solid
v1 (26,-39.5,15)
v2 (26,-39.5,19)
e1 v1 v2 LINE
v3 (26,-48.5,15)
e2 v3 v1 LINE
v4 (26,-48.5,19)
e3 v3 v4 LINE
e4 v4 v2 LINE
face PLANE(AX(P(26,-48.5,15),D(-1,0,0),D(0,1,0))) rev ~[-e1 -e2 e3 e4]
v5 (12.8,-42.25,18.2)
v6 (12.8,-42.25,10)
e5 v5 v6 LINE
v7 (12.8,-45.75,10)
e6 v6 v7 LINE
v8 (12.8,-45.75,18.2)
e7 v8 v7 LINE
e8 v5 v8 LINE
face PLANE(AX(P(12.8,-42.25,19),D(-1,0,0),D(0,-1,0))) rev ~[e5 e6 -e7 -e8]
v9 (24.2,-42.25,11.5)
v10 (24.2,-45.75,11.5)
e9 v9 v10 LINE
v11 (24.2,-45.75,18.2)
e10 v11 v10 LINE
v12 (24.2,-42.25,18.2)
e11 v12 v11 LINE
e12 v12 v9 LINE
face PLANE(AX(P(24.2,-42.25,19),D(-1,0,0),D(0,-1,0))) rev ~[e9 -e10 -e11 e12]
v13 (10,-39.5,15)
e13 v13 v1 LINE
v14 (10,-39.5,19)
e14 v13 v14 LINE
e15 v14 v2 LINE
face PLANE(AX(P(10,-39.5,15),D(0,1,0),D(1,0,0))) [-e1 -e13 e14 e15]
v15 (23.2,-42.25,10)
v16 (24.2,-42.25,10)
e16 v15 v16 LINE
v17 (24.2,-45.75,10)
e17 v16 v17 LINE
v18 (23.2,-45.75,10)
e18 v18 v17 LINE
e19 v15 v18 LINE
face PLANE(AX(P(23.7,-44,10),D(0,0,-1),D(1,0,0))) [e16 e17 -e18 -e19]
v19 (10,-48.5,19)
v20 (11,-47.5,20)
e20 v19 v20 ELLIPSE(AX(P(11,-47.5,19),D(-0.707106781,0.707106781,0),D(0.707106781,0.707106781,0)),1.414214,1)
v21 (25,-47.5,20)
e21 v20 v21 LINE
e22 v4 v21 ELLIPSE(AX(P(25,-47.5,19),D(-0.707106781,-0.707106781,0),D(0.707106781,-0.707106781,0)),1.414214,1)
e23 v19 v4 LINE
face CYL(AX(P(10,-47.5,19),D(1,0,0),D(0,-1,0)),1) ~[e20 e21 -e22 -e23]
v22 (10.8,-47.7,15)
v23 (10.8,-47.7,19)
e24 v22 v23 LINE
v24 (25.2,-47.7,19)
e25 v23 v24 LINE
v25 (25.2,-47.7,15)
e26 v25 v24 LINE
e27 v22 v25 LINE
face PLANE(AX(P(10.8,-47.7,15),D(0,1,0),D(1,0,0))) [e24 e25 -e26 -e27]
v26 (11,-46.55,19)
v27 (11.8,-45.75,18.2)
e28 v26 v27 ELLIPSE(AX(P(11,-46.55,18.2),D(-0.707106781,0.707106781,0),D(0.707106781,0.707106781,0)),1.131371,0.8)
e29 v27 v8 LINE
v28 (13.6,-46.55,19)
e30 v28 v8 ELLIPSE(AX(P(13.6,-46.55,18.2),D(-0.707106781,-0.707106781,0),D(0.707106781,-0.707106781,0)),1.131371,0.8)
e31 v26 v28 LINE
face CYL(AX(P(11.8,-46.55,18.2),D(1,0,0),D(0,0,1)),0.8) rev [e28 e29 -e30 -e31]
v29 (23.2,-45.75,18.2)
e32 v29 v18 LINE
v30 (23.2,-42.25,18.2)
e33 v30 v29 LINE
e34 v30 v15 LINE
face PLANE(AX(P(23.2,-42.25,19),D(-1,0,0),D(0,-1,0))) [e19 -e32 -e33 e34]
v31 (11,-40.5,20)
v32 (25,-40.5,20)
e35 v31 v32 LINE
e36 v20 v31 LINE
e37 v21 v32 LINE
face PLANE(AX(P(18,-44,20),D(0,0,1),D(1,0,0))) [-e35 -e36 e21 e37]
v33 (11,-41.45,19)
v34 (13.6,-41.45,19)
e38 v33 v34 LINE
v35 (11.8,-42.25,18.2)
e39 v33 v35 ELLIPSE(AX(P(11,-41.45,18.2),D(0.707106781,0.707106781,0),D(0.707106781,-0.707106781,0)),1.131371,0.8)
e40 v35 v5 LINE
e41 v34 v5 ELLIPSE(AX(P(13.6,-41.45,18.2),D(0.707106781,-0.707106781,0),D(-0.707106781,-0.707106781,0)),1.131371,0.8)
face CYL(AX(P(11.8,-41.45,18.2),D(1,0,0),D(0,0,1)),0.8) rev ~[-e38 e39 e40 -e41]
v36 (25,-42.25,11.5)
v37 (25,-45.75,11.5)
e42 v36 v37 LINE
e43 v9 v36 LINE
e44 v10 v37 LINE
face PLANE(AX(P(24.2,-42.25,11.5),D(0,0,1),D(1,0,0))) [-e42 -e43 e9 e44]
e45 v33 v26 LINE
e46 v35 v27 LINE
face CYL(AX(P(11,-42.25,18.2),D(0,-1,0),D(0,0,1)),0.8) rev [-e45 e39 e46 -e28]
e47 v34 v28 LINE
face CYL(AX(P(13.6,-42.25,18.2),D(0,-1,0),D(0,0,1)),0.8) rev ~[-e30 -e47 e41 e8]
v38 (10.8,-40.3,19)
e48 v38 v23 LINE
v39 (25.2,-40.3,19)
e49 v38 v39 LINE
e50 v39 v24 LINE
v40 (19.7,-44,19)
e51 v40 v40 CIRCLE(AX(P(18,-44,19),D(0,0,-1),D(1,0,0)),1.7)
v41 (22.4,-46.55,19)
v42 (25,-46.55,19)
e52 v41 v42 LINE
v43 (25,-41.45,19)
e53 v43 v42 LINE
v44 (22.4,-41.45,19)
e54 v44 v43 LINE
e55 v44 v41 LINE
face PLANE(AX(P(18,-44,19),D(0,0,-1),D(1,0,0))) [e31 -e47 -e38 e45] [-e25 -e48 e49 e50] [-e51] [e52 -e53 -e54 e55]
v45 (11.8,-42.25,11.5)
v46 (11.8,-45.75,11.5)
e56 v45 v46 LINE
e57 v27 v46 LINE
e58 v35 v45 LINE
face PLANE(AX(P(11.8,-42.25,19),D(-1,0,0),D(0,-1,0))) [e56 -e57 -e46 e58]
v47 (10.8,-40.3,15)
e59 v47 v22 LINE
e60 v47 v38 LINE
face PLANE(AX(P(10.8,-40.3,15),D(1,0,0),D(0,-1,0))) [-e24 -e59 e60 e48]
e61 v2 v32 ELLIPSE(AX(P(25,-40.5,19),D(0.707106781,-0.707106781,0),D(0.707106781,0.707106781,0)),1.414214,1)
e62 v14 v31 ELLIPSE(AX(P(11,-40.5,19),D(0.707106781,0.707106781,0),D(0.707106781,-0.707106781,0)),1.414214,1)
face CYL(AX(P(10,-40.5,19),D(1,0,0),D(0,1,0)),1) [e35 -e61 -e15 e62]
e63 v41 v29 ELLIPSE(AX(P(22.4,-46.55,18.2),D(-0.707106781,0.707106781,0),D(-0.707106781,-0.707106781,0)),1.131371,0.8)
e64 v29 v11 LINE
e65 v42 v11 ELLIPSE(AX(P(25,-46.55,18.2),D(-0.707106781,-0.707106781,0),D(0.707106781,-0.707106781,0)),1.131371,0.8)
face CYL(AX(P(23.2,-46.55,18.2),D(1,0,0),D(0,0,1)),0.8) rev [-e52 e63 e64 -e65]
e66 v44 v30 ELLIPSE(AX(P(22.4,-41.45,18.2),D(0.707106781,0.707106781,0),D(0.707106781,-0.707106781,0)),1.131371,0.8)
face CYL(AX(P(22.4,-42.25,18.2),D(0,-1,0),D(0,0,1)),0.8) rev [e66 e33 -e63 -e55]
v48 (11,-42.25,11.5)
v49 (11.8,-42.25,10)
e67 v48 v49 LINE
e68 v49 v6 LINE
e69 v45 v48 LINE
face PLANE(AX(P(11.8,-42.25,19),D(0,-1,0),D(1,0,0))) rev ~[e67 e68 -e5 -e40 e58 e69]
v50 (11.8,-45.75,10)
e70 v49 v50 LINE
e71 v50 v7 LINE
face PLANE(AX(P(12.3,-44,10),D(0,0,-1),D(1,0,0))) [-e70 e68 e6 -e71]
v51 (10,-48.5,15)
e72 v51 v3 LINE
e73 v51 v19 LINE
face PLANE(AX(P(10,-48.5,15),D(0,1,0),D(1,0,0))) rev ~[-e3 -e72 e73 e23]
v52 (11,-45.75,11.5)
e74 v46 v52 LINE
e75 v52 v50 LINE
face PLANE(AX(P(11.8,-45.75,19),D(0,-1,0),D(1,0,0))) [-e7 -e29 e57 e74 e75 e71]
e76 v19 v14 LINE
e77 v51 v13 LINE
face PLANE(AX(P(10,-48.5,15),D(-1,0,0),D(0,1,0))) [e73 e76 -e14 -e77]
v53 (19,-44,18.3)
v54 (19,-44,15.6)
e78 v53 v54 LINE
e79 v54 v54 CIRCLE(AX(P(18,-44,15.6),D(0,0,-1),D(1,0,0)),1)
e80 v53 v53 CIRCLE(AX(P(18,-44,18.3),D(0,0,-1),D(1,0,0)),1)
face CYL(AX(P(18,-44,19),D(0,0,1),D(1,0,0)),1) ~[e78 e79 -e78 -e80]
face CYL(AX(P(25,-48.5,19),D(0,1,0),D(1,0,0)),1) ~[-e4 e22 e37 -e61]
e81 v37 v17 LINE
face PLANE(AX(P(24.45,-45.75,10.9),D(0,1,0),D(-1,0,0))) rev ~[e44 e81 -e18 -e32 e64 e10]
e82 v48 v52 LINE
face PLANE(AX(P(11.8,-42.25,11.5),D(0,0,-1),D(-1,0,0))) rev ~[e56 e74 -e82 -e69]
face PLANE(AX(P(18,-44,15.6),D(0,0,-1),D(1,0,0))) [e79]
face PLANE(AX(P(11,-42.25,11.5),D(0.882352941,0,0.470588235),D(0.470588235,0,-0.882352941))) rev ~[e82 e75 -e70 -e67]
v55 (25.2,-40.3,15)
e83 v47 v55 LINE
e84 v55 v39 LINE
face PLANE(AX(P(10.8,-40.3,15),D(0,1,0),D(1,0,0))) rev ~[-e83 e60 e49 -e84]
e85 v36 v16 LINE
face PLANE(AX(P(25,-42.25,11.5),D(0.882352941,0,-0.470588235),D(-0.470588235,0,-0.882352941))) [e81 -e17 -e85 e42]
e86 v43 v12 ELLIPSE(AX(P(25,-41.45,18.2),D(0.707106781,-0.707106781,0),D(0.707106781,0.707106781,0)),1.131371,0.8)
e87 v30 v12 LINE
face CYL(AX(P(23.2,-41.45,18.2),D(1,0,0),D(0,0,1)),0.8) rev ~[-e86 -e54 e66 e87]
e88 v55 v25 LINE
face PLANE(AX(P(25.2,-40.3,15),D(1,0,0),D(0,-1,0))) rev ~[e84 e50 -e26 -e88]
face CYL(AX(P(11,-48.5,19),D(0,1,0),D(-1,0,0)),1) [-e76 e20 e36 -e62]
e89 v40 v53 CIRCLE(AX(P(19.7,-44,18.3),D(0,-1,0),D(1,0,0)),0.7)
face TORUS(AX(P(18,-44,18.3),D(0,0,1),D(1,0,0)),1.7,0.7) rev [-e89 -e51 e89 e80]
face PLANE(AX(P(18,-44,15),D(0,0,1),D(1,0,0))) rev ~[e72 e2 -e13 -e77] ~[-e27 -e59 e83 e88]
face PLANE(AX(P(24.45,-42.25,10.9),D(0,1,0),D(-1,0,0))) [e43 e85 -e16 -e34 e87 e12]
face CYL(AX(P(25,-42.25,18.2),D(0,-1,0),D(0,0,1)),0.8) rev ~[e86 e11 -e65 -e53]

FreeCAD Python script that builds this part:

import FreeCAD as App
import Part
import Sketcher


def edges_at(feature, points):
    """Names of the edges that pass closest to the given points."""
    edges = feature.Shape.Edges
    near = lambda p: min(range(len(edges)), key=lambda i: edges[i].distToShape(Part.Vertex(*p))[0])
    return sorted({f"Edge{near(p) + 1}" for p in points})

doc = App.newDocument("Part")
params = doc.addObject("Spreadsheet::Sheet", "Params")
for row, (alias, value) in enumerate([
    ("sketch1_width", "16 mm"),
    ("sketch1_height", "9 mm"),
    ("pad1_length", "5 mm"),
    ("sketch2_width", "14.4 mm"),
    ("sketch2_height", "7.4 mm"),
    ("pocket1_length", "4 mm"),
    ("sketch3_width", "1 mm"),
    ("sketch3_height", "3.5 mm"),
    ("pad2_length", "9 mm"),
    ("sketch4_width", "0.8 mm"),
    ("sketch4_height", "1.5 mm"),
    ("pad3_length", "3.5 mm"),
    ("sketch5_diameter", "2 mm"),
    ("pad4_length", "3.4 mm"),
    ("fillet_radius", "1 mm"),
    ("fillet2_radius", "0.7 mm"),
    ("fillet3_radius", "0.8 mm"),
], start=1):
    params.set(f"A{row}", alias)
    params.set(f"B{row}", "=" + value)
    params.setAlias(f"B{row}", alias)

body = doc.addObject("PartDesign::Body", "Body")

sketch1 = doc.addObject("Sketcher::SketchObject", "Sketch")
body.addObject(sketch1)
sketch1.AttachmentSupport = (doc.XY_Plane, [""])
sketch1.MapMode = "FlatFace"
sketch1.addGeometry([
    Part.LineSegment(App.Vector(-8, 4.5, 0), App.Vector(-8, -4.5, 0)),
    Part.LineSegment(App.Vector(-8, -4.5, 0), App.Vector(8, -4.5, 0)),
    Part.LineSegment(App.Vector(8, -4.5, 0), App.Vector(8, 4.5, 0)),
    Part.LineSegment(App.Vector(8, 4.5, 0), App.Vector(-8, 4.5, 0)),
], False)
sketch1.addConstraint([
    Sketcher.Constraint("Coincident", 0, 2, 1, 1),
    Sketcher.Constraint("Coincident", 1, 2, 2, 1),
    Sketcher.Constraint("Coincident", 2, 2, 3, 1),
    Sketcher.Constraint("Coincident", 3, 2, 0, 1),
    Sketcher.Constraint("Vertical", 0),
    Sketcher.Constraint("Horizontal", 1),
    Sketcher.Constraint("Vertical", 2),
    Sketcher.Constraint("Horizontal", 3),
    Sketcher.Constraint("Symmetric", 0, 2, 2, 2, -1, 1),
    Sketcher.Constraint("DistanceX", 1, 1, 1, 2, 16.0),
    Sketcher.Constraint("DistanceY", 0, 2, 0, 1, 9.0),
])
sketch1.setExpression("Constraints[9]", "Params.sketch1_width")
sketch1.setExpression("Constraints[10]", "Params.sketch1_height")
pad1 = doc.addObject("PartDesign::Pad", "Pad")
body.addObject(pad1)
pad1.Profile = sketch1
pad1.setExpression("Length", "Params.pad1_length")

sketch2 = doc.addObject("Sketcher::SketchObject", "Sketch001")
body.addObject(sketch2)
sketch2.AttachmentSupport = (doc.XY_Plane, [""])
sketch2.MapMode = "FlatFace"
sketch2.addGeometry([
    Part.LineSegment(App.Vector(-7.2, -3.7, 0), App.Vector(-7.2, 3.7, 0)),
    Part.LineSegment(App.Vector(-7.2, 3.7, 0), App.Vector(7.2, 3.7, 0)),
    Part.LineSegment(App.Vector(7.2, 3.7, 0), App.Vector(7.2, -3.7, 0)),
    Part.LineSegment(App.Vector(7.2, -3.7, 0), App.Vector(-7.2, -3.7, 0)),
], False)
sketch2.addConstraint([
    Sketcher.Constraint("Coincident", 0, 2, 1, 1),
    Sketcher.Constraint("Coincident", 1, 2, 2, 1),
    Sketcher.Constraint("Coincident", 2, 2, 3, 1),
    Sketcher.Constraint("Coincident", 3, 2, 0, 1),
    Sketcher.Constraint("Vertical", 0),
    Sketcher.Constraint("Horizontal", 1),
    Sketcher.Constraint("Vertical", 2),
    Sketcher.Constraint("Horizontal", 3),
    Sketcher.Constraint("Symmetric", 0, 2, 2, 2, -1, 1),
    Sketcher.Constraint("DistanceX", 1, 1, 1, 2, 14.4),
    Sketcher.Constraint("DistanceY", 0, 1, 0, 2, 7.4),
])
sketch2.setExpression("Constraints[9]", "Params.sketch2_width")
sketch2.setExpression("Constraints[10]", "Params.sketch2_height")
pocket1 = doc.addObject("PartDesign::Pocket", "Pocket")
body.addObject(pocket1)
pocket1.Profile = sketch2
pocket1.setExpression("Length", "Params.pocket1_length")
pocket1.Reversed = True

sketch3 = doc.addObject("Sketcher::SketchObject", "Sketch002")
body.addObject(sketch3)
sketch3.AttachmentSupport = (doc.XY_Plane, [""])
sketch3.MapMode = "FlatFace"
sketch3.AttachmentOffset = App.Placement(App.Vector(0, 0, 4), App.Rotation())
sketch3.addGeometry([
    Part.LineSegment(App.Vector(-6.2, -1.75, 0), App.Vector(-6.2, 1.75, 0)),
    Part.LineSegment(App.Vector(-6.2, 1.75, 0), App.Vector(-5.2, 1.75, 0)),
    Part.LineSegment(App.Vector(-5.2, 1.75, 0), App.Vector(-5.2, -1.75, 0)),
    Part.LineSegment(App.Vector(-5.2, -1.75, 0), App.Vector(-6.2, -1.75, 0)),
    Part.LineSegment(App.Vector(5.2, -1.75, 0), App.Vector(5.2, 1.75, 0)),
    Part.LineSegment(App.Vector(5.2, 1.75, 0), App.Vector(6.2, 1.75, 0)),
    Part.LineSegment(App.Vector(6.2, 1.75, 0), App.Vector(6.2, -1.75, 0)),
    Part.LineSegment(App.Vector(6.2, -1.75, 0), App.Vector(5.2, -1.75, 0)),
], False)
sketch3.addConstraint([
    Sketcher.Constraint("Coincident", 0, 2, 1, 1),
    Sketcher.Constraint("Coincident", 1, 2, 2, 1),
    Sketcher.Constraint("Coincident", 2, 2, 3, 1),
    Sketcher.Constraint("Coincident", 3, 2, 0, 1),
    Sketcher.Constraint("Coincident", 4, 2, 5, 1),
    Sketcher.Constraint("Coincident", 5, 2, 6, 1),
    Sketcher.Constraint("Coincident", 6, 2, 7, 1),
    Sketcher.Constraint("Coincident", 7, 2, 4, 1),
    Sketcher.Constraint("Vertical", 0),
    Sketcher.Constraint("Horizontal", 1),
    Sketcher.Constraint("Vertical", 2),
    Sketcher.Constraint("Horizontal", 3),
    Sketcher.Constraint("Vertical", 4),
    Sketcher.Constraint("Horizontal", 5),
    Sketcher.Constraint("Vertical", 6),
    Sketcher.Constraint("Horizontal", 7),
    Sketcher.Constraint("Symmetric", 2, 2, 4, 2, -1, 1),
    Sketcher.Constraint("Symmetric", 0, 2, 6, 2, -1, 1),
    Sketcher.Constraint("Horizontal", 1, 2, 4, 2),
    Sketcher.Constraint("DistanceX", 1, 1, 1, 2, 1.0),
    Sketcher.Constraint("DistanceY", 0, 1, 0, 2, 3.5),
    Sketcher.Constraint("DistanceX", 0, 2, -1, 1, 6.2),
])
sketch3.setExpression("Constraints[19]", "Params.sketch3_width")
sketch3.setExpression("Constraints[20]", "Params.sketch3_height")
pad2 = doc.addObject("PartDesign::Pad", "Pad001")
body.addObject(pad2)
pad2.Profile = sketch3
pad2.setExpression("Length", "Params.pad2_length")
pad2.Reversed = True

sketch4 = doc.addObject("Sketcher::SketchObject", "Sketch003")
body.addObject(sketch4)
sketch4.AttachmentSupport = (doc.XZ_Plane, [""])
sketch4.MapMode = "FlatFace"
sketch4.AttachmentOffset = App.Placement(App.Vector(0, 0, -1.75), App.Rotation())
sketch4.addGeometry([
    Part.LineSegment(App.Vector(6.2, -3.5, 0), App.Vector(7, -3.5, 0)),
    Part.LineSegment(App.Vector(7, -3.5, 0), App.Vector(6.2, -5, 0)),
    Part.LineSegment(App.Vector(6.2, -5, 0), App.Vector(6.2, -3.5, 0)),
    Part.LineSegment(App.Vector(-7, -3.5, 0), App.Vector(-6.2, -3.5, 0)),
    Part.LineSegment(App.Vector(-6.2, -3.5, 0), App.Vector(-6.2, -5, 0)),
    Part.LineSegment(App.Vector(-6.2, -5, 0), App.Vector(-7, -3.5, 0)),
], False)
sketch4.addConstraint([
    Sketcher.Constraint("Coincident", 0, 2, 1, 1),
    Sketcher.Constraint("Coincident", 1, 2, 2, 1),
    Sketcher.Constraint("Coincident", 2, 2, 0, 1),
    Sketcher.Constraint("Coincident", 3, 2, 4, 1),
    Sketcher.Constraint("Coincident", 4, 2, 5, 1),
    Sketcher.Constraint("Coincident", 5, 2, 3, 1),
    Sketcher.Constraint("Horizontal", 0),
    Sketcher.Constraint("Vertical", 2),
    Sketcher.Constraint("Horizontal", 3),
    Sketcher.Constraint("Vertical", 4),
    Sketcher.Constraint("Symmetric", 2, 2, 3, 2, -2),
    Sketcher.Constraint("Horizontal", 1, 2, 4, 2),
    Sketcher.Constraint("Equal", 0, 3),
    Sketcher.Constraint("DistanceX", 0, 1, 0, 2, 0.8),
    Sketcher.Constraint("DistanceY", 2, 1, 2, 2, 1.5),
    Sketcher.Constraint("DistanceX", -1, 1, 0, 2, 7.0),
    Sketcher.Constraint("DistanceY", 1, 2, -1, 1, 5.0),
])
sketch4.setExpression("Constraints[13]", "Params.sketch4_width")
sketch4.setExpression("Constraints[14]", "Params.sketch4_height")
pad3 = doc.addObject("PartDesign::Pad", "Pad002")
body.addObject(pad3)
pad3.Profile = sketch4
pad3.setExpression("Length", "Params.pad3_length")

sketch5 = doc.addObject("Sketcher::SketchObject", "Sketch004")
body.addObject(sketch5)
sketch5.AttachmentSupport = (doc.XY_Plane, [""])
sketch5.MapMode = "FlatFace"
sketch5.AttachmentOffset = App.Placement(App.Vector(0, 0, 4), App.Rotation())
sketch5.addGeometry(Part.Circle(App.Vector(0, 0, 0), App.Vector(0, 0, 1), 1), False)
sketch5.addConstraint([
    Sketcher.Constraint("Coincident", 0, 3, -1, 1),
    Sketcher.Constraint("Diameter", 0, 2.0),
])
sketch5.setExpression("Constraints[1]", "Params.sketch5_diameter")
pad4 = doc.addObject("PartDesign::Pad", "Pad003")
body.addObject(pad4)
pad4.Profile = sketch5
pad4.setExpression("Length", "Params.pad4_length")
pad4.Reversed = True
doc.recompute()

fillet = doc.addObject("PartDesign::Fillet", "Fillet")
body.addObject(fillet)
fillet.Base = (pad4, edges_at(pad4, [
    (0, 4.5, 5),
    (-8, 0, 5),
    (0, -4.5, 5),
    (8, 0, 5),
]))
fillet.setExpression("Radius", "Params.fillet_radius")
doc.recompute()

fillet2 = doc.addObject("PartDesign::Fillet", "Fillet001")
body.addObject(fillet2)
fillet2.Base = (fillet, edges_at(fillet, [(-1, 0, 4)]))
fillet2.setExpression("Radius", "Params.fillet2_radius")
doc.recompute()

fillet3 = doc.addObject("PartDesign::Fillet", "Fillet002")
body.addObject(fillet3)
fillet3.Base = (fillet2, edges_at(fillet2, [
    (5.2, 0, 4),
    (5.7, 1.75, 4),
    (6.2, 0, 4),
    (5.7, -1.75, 4),
    (-5.7, -1.75, 4),
    (-6.2, 0, 4),
    (-5.2, 0, 4),
    (-5.7, 1.75, 4),
]))
fillet3.setExpression("Radius", "Params.fillet3_radius")
body2 = doc.addObject("PartDesign::Body", "Body001")
doc.recompute()

body.Placement = App.Placement(App.Vector(-33, -44, 15), App.Rotation(App.Vector(0, 0, 1), 0))
boolean = doc.addObject("PartDesign::Boolean", "Boolean")
body2.addObject(boolean)
boolean.Type = "Fuse"
boolean.addObjects([body])
body3 = doc.addObject("PartDesign::Body", "Body002")
doc.recompute()

body2.Placement = App.Placement(App.Vector(0, 0, 4), App.Rotation(App.Vector(0, 0, 1), 0))
boolean2 = doc.addObject("PartDesign::Boolean", "Boolean001")
body3.addObject(boolean2)
boolean2.Type = "Fuse"
boolean2.addObjects([body2])
body4 = doc.addObject("PartDesign::Body", "Body003")
doc.recompute()

body3.Placement = App.Placement(App.Vector(51, 0, -4), App.Rotation(App.Vector(0, 0, 1), 0))
boolean3 = doc.addObject("PartDesign::Boolean", "Boolean002")
body4.addObject(boolean3)
boolean3.Type = "Fuse"
boolean3.addObjects([body3])

doc.recompute()
